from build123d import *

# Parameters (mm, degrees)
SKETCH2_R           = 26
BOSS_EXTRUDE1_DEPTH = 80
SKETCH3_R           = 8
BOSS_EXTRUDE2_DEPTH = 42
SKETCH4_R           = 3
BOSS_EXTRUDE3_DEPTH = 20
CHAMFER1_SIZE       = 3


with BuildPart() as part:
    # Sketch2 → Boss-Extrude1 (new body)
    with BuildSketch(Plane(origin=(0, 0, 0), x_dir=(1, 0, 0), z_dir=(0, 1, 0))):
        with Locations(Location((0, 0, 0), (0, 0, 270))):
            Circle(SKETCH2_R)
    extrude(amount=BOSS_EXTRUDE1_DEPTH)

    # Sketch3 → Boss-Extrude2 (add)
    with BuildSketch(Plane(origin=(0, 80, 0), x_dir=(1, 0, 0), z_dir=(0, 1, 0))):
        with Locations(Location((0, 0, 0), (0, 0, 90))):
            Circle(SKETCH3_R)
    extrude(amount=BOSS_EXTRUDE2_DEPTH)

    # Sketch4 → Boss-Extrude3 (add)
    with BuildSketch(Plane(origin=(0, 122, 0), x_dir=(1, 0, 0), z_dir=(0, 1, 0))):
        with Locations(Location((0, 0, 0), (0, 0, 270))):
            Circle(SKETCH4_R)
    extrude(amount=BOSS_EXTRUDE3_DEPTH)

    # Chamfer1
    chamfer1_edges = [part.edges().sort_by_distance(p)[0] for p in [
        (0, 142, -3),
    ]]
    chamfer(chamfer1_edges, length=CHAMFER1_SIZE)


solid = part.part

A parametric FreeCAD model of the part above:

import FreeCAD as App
import Part
import Sketcher


def edges_at(feature, points):
    """Names of the edges that pass closest to the given points."""
    edges = feature.Shape.Edges
    near = lambda p: min(range(len(edges)), key=lambda i: edges[i].distToShape(Part.Vertex(*p))[0])
    return sorted({f"Edge{near(p) + 1}" for p in points})

doc = App.newDocument("Part")
params = doc.addObject("Spreadsheet::Sheet", "Params")
for row, (alias, value) in enumerate([
    ("sketch1_diameter", "52 mm"),
    ("pad1_length", "80 mm"),
    ("sketch2_diameter", "16 mm"),
    ("pad2_length", "42 mm"),
    ("sketch3_diameter", "6 mm"),
    ("pad3_length", "20 mm"),
    ("chamfer_size", "3 mm"),
], start=1):
    params.set(f"A{row}", alias)
    params.set(f"B{row}", "=" + value)
    params.setAlias(f"B{row}", alias)

body = doc.addObject("PartDesign::Body", "Body")

sketch1 = body.newObject("Sketcher::SketchObject", "Sketch")
sketch1.AttachmentSupport = (doc.getObject("XZ_Plane"), [""])
sketch1.MapMode = "FlatFace"
sketch1.addGeometry(Part.Circle(App.Vector(0, 0, 0), App.Vector(0, 0, 1), 26), False)
sketch1.addConstraint([
    Sketcher.Constraint("Coincident", 0, 3, -1, 1),
    Sketcher.Constraint("Diameter", 0, 52.0),
])
sketch1.setExpression("Constraints[1]", "Params.sketch1_diameter")
pad1 = body.newObject("PartDesign::Pad", "Pad")
pad1.Profile = sketch1
pad1.setExpression("Length", "Params.pad1_length")
pad1.Reversed = True

sketch2 = body.newObject("Sketcher::SketchObject", "Sketch001")
sketch2.AttachmentSupport = (doc.getObject("XZ_Plane"), [""])
sketch2.MapMode = "FlatFace"
sketch2.AttachmentOffset = App.Placement(App.Vector(0, 0, -80), App.Rotation())
sketch2.addGeometry(Part.Circle(App.Vector(0, 0, 0), App.Vector(0, 0, 1), 8), False)
sketch2.addConstraint([
    Sketcher.Constraint("Coincident", 0, 3, -1, 1),
    Sketcher.Constraint("Diameter", 0, 16.0),
])
sketch2.setExpression("Constraints[1]", "Params.sketch2_diameter")
pad2 = body.newObject("PartDesign::Pad", "Pad001")
pad2.Profile = sketch2
pad2.setExpression("Length", "Params.pad2_length")
pad2.Reversed = True

sketch3 = body.newObject("Sketcher::SketchObject", "Sketch002")
sketch3.AttachmentSupport = (doc.getObject("XZ_Plane"), [""])
sketch3.MapMode = "FlatFace"
sketch3.AttachmentOffset = App.Placement(App.Vector(0, 0, -122), App.Rotation())
sketch3.addGeometry(Part.Circle(App.Vector(0, 0, 0), App.Vector(0, 0, 1), 3), False)
sketch3.addConstraint([
    Sketcher.Constraint("Coincident", 0, 3, -1, 1),
    Sketcher.Constraint("Diameter", 0, 6.0),
])
sketch3.setExpression("Constraints[1]", "Params.sketch3_diameter")
pad3 = body.newObject("PartDesign::Pad", "Pad002")
pad3.Profile = sketch3
pad3.setExpression("Length", "Params.pad3_length")
pad3.Reversed = True
doc.recompute()

chamfer = body.newObject("PartDesign::Chamfer", "Chamfer")
chamfer.Base = (pad3, edges_at(pad3, [(0, 142, -3)]))
chamfer.setExpression("Size", "Params.chamfer_size")

doc.recompute()
